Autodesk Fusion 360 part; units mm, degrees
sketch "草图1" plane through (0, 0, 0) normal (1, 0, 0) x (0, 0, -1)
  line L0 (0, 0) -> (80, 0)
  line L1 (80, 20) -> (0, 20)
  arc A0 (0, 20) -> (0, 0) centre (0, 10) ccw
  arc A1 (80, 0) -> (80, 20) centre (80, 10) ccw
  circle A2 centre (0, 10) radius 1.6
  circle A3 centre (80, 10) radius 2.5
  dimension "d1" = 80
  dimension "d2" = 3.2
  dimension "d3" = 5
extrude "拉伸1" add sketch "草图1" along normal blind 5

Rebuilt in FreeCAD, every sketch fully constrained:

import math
import FreeCAD as App
import Part
import Sketcher
from FreeCAD import Vector
Q = App.Units.Quantity

doc = App.newDocument("Part")
body = doc.addObject("PartDesign::Body", "Body")

# Sketch on YZ plane
sketch1 = body.newObject("Sketcher::SketchObject", "Sketch")
sketch1.AttachmentSupport = (doc.getObject("YZ_Plane"), [""])
sketch1.MapMode = "FlatFace"
sketch1.addGeometry([
    Part.ArcOfCircle(Part.Circle(Vector(10, 0, 0), Vector(0, 0, 1), 10), math.radians(0), math.radians(180)),  # 0
    Part.LineSegment(Vector(0, 0, 0), Vector(0, -80, 0)),  # 1
    Part.ArcOfCircle(Part.Circle(Vector(10, -80, 0), Vector(0, 0, 1), 10), math.radians(180), math.radians(360)),  # 2
    Part.LineSegment(Vector(20, -80, 0), Vector(20, 0, 0)),  # 3
    Part.Circle(Vector(10, 0, 0), Vector(0, 0, 1), 1.6),  # 4
    Part.Circle(Vector(10, -80, 0), Vector(0, 0, 1), 2.5),  # 5
], False)
sketch1.addConstraint([
    Sketcher.Constraint("Tangent", 0, 2, 1, 1),
    Sketcher.Constraint("Tangent", 1, 2, 2, 1),
    Sketcher.Constraint("Tangent", 2, 2, 3, 1),
    Sketcher.Constraint("Tangent", 3, 2, 0, 1),
    Sketcher.Constraint("Vertical", 1),
    Sketcher.Constraint("Vertical", 3),
    Sketcher.Constraint("Coincident", 0, 2, -1, 1),
    Sketcher.Constraint("Coincident", 4, 3, 0, 3),
    Sketcher.Constraint("Coincident", 5, 3, 2, 3),
    Sketcher.Constraint("Diameter", 5, Q("5 mm")),
    Sketcher.Constraint("Diameter", 4, Q("3.2 mm")),
    Sketcher.Constraint("DistanceY", 1, 2, 1, 1, Q("80 mm")),
    Sketcher.Constraint("Radius", 0, Q("10 mm")),
])
pad1 = body.newObject("PartDesign::Pad", "Pad")
pad1.Profile = sketch1
pad1.Length = 5

doc.recompute()
